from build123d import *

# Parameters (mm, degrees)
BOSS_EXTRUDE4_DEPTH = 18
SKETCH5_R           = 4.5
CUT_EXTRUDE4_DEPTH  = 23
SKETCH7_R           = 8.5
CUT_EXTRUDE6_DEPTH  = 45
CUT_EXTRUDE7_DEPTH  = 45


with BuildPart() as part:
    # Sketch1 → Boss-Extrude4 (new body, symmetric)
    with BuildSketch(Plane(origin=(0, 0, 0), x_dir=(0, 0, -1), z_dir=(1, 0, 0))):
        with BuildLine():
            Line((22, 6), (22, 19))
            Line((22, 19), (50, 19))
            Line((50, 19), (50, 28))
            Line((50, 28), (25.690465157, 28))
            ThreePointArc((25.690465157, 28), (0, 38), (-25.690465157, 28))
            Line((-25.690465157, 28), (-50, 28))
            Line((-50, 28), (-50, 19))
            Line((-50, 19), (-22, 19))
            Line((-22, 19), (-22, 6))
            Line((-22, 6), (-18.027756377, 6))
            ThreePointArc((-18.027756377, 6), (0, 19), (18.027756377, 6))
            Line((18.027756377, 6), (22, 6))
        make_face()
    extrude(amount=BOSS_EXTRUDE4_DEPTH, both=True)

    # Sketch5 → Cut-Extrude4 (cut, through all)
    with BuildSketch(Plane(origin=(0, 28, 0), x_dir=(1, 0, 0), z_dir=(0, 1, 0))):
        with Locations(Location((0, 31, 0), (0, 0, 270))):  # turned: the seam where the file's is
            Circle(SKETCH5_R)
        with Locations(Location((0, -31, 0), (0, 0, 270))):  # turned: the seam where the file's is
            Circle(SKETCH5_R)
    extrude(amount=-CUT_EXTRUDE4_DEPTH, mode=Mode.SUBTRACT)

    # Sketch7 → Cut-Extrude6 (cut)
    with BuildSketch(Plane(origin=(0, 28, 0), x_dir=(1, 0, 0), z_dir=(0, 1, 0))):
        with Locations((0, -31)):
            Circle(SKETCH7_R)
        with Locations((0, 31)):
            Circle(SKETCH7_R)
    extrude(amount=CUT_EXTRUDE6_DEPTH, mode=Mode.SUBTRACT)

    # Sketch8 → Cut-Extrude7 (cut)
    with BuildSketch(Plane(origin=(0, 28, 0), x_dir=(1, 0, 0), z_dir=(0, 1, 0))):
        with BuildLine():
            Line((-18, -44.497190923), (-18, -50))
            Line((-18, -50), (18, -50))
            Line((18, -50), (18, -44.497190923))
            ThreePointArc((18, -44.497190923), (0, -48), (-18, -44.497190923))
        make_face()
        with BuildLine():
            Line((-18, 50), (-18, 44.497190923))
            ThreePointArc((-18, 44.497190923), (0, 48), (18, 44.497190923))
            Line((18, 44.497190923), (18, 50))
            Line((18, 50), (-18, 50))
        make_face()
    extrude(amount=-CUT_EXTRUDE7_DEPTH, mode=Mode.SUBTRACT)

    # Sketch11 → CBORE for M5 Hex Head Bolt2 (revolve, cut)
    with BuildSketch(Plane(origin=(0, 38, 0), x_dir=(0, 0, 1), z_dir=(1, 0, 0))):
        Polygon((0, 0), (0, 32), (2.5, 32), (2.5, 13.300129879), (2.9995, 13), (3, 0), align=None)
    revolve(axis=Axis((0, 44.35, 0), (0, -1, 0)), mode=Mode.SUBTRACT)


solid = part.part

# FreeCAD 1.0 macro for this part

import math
import FreeCAD as App
import Part
import Sketcher

V = App.Vector
Q = App.Units.Quantity


def add_polygon(sketch, points):
    """Adds a closed chain of lines whose ends are joined by coincident constraints."""
    first, n = sketch.GeometryCount, len(points)
    for a, b in zip(points, points[1:] + points[:1]):
        sketch.addGeometry(Part.LineSegment(App.Vector(*a, 0), App.Vector(*b, 0)), False)
    for i in range(n):
        sketch.addConstraint(Sketcher.Constraint("Coincident", first + i, 2, first + (i + 1) % n, 1))

doc = App.newDocument("Part")
body = doc.addObject("PartDesign::Body", "Body")

sketch1 = doc.addObject("Sketcher::SketchObject", "Sketch")
body.addObject(sketch1)
sketch1.AttachmentSupport = (doc.YZ_Plane, [""])
sketch1.MapMode = "FlatFace"
sketch1.addGeometry(Part.LineSegment(V(6, -22, 0), V(19, -22, 0)), False)
sketch1.addGeometry(Part.LineSegment(V(19, -22, 0), V(19, -50, 0)), False)
sketch1.addGeometry(Part.LineSegment(V(19, -50, 0), V(28, -50, 0)), False)
sketch1.addGeometry(Part.LineSegment(V(28, -50, 0), V(28, -25.7, 0)), False)
sketch1.addGeometry(Part.ArcOfCircle(Part.Circle(V(0, 0, 0), V(0, 0, 1), 38), math.radians(-43), math.radians(43)), False)
sketch1.addGeometry(Part.LineSegment(V(28, 25.7, 0), V(28, 50, 0)), False)
sketch1.addGeometry(Part.LineSegment(V(28, 50, 0), V(19, 50, 0)), False)
sketch1.addGeometry(Part.LineSegment(V(19, 50, 0), V(19, 22, 0)), False)
sketch1.addGeometry(Part.LineSegment(V(19, 22, 0), V(6, 22, 0)), False)
sketch1.addGeometry(Part.LineSegment(V(6, 22, 0), V(6, 18, 0)), False)
sketch1.addGeometry(Part.ArcOfCircle(Part.Circle(V(0, 0, 0), V(0, 0, 1), 19), math.radians(-72), math.radians(72)), False)
sketch1.addGeometry(Part.LineSegment(V(6, -18, 0), V(6, -22, 0)), False)
sketch1.addConstraint(Sketcher.Constraint("Coincident", 0, 2, 1, 1))
sketch1.addConstraint(Sketcher.Constraint("Coincident", 1, 2, 2, 1))
sketch1.addConstraint(Sketcher.Constraint("Coincident", 2, 2, 3, 1))
sketch1.addConstraint(Sketcher.Constraint("Coincident", 3, 2, 4, 1))
sketch1.addConstraint(Sketcher.Constraint("Coincident", 4, 2, 5, 1))
sketch1.addConstraint(Sketcher.Constraint("Coincident", 5, 2, 6, 1))
sketch1.addConstraint(Sketcher.Constraint("Coincident", 6, 2, 7, 1))
sketch1.addConstraint(Sketcher.Constraint("Coincident", 7, 2, 8, 1))
sketch1.addConstraint(Sketcher.Constraint("Coincident", 8, 2, 9, 1))
sketch1.addConstraint(Sketcher.Constraint("Coincident", 9, 2, 10, 2))
sketch1.addConstraint(Sketcher.Constraint("Coincident", 10, 1, 11, 1))
sketch1.addConstraint(Sketcher.Constraint("Coincident", 11, 2, 0, 1))
sketch1.addConstraint(Sketcher.Constraint("Horizontal", 0))
sketch1.addConstraint(Sketcher.Constraint("Vertical", 1))
sketch1.addConstraint(Sketcher.Constraint("Horizontal", 2))
sketch1.addConstraint(Sketcher.Constraint("Vertical", 3))
sketch1.addConstraint(Sketcher.Constraint("Vertical", 5))
sketch1.addConstraint(Sketcher.Constraint("Horizontal", 6))
sketch1.addConstraint(Sketcher.Constraint("Vertical", 7))
sketch1.addConstraint(Sketcher.Constraint("Horizontal", 8))
sketch1.addConstraint(Sketcher.Constraint("Vertical", 9))
sketch1.addConstraint(Sketcher.Constraint("Vertical", 11))
sketch1.addConstraint(Sketcher.Constraint("Coincident", 4, 3, -1, 1))
sketch1.addConstraint(Sketcher.Constraint("Coincident", 10, 3, -1, 1))
sketch1.addConstraint(Sketcher.Constraint("Symmetric", 2, 2, 5, 2, -1))
sketch1.addConstraint(Sketcher.Constraint("Symmetric", 0, 2, 7, 2, -1))
sketch1.addConstraint(Sketcher.Constraint("Vertical", 9, 2, 10, 1))
sketch1.addConstraint(Sketcher.Constraint("Radius", 4, 38.0))
sketch1.addConstraint(Sketcher.Constraint("Radius", 10, 19.0))
sketch1.addConstraint(Sketcher.Constraint("DistanceX", 0, 1, 0, 2, 13.0))
sketch1.addConstraint(Sketcher.Constraint("DistanceX", 2, 1, 2, 2, 9.0))
sketch1.addConstraint(Sketcher.Constraint("DistanceY", 1, 2, 1, 1, 28.0))
sketch1.addConstraint(Sketcher.Constraint("DistanceX", -1, 1, 0, 2, 19.0))
sketch1.addConstraint(Sketcher.Constraint("DistanceY", 0, 2, -1, 1, 22.0))
pad1 = doc.addObject("PartDesign::Pad", "Pad")
body.addObject(pad1)
pad1.Profile = sketch1
pad1.Length = 36
pad1.Midplane = True

sketch2 = doc.addObject("Sketcher::SketchObject", "Sketch001")
body.addObject(sketch2)
sketch2.AttachmentSupport = (doc.XZ_Plane, [""])
sketch2.MapMode = "FlatFace"
sketch2.AttachmentOffset = App.Placement(V(0, 0, -28), App.Rotation())
sketch2.addGeometry(Part.Circle(V(0, -31, 0), V(0, 0, 1), 4.5), False)
sketch2.addGeometry(Part.Circle(V(0, 31, 0), V(0, 0, 1), 4.5), False)
sketch2.addConstraint(Sketcher.Constraint("Equal", 0, 1))
sketch2.addConstraint(Sketcher.Constraint("Symmetric", 0, 3, 1, 3, -1, 1))
sketch2.addConstraint(Sketcher.Constraint("PointOnObject", 0, 3, -2))
sketch2.addConstraint(Sketcher.Constraint("Diameter", 0, 9.0))
sketch2.addConstraint(Sketcher.Constraint("DistanceY", 0, 3, -1, 1, 31.0))
pocket1 = doc.addObject("PartDesign::Pocket", "Pocket")
body.addObject(pocket1)
pocket1.Profile = sketch2
pocket1.Type = "ThroughAll"
pocket1.Reversed = True

sketch3 = doc.addObject("Sketcher::SketchObject", "Sketch002")
body.addObject(sketch3)
sketch3.AttachmentSupport = (doc.XZ_Plane, [""])
sketch3.MapMode = "FlatFace"
sketch3.AttachmentOffset = App.Placement(V(0, 0, -28), App.Rotation())
sketch3.addGeometry(Part.Circle(V(0, 31, 0), V(0, 0, 1), 8), False)
sketch3.addGeometry(Part.Circle(V(0, -31, 0), V(0, 0, 1), 8), False)
sketch3.addConstraint(Sketcher.Constraint("Equal", 0, 1))
sketch3.addConstraint(Sketcher.Constraint("Symmetric", 0, 3, 1, 3, -1, 1))
sketch3.addConstraint(Sketcher.Constraint("PointOnObject", 0, 3, -2))
sketch3.addConstraint(Sketcher.Constraint("Diameter", 0, 17.0))
sketch3.addConstraint(Sketcher.Constraint("DistanceY", -1, 1, 0, 3, 31.0))
pocket2 = doc.addObject("PartDesign::Pocket", "Pocket001")
body.addObject(pocket2)
pocket2.Profile = sketch3
pocket2.Length = 45

sketch4 = doc.addObject("Sketcher::SketchObject", "Sketch003")
body.addObject(sketch4)
sketch4.AttachmentSupport = (doc.XZ_Plane, [""])
sketch4.MapMode = "FlatFace"
sketch4.AttachmentOffset = App.Placement(V(0, 0, -28), App.Rotation())
sketch4.addGeometry(Part.LineSegment(V(-18, 44, 0), V(-18, 50, 0)), False)
sketch4.addGeometry(Part.LineSegment(V(-18, 50, 0), V(18, 50, 0)), False)
sketch4.addGeometry(Part.LineSegment(V(18, 50, 0), V(18, 44, 0)), False)
sketch4.addGeometry(Part.ArcOfCircle(Part.Circle(V(0, 0, 0), V(0, 0, 1), 48), math.radians(68), math.radians(112)), False)
sketch4.addGeometry(Part.LineSegment(V(-18, -50, 0), V(-18, -44, 0)), False)
sketch4.addGeometry(Part.ArcOfCircle(Part.Circle(V(0, 0, 0), V(0, 0, 1), 48), math.radians(-112), math.radians(-68)), False)
sketch4.addGeometry(Part.LineSegment(V(18, -44, 0), V(18, -50, 0)), False)
sketch4.addGeometry(Part.LineSegment(V(18, -50, 0), V(-18, -50, 0)), False)
sketch4.addConstraint(Sketcher.Constraint("Coincident", 0, 2, 1, 1))
sketch4.addConstraint(Sketcher.Constraint("Coincident", 1, 2, 2, 1))
sketch4.addConstraint(Sketcher.Constraint("Coincident", 2, 2, 3, 1))
sketch4.addConstraint(Sketcher.Constraint("Coincident", 3, 2, 0, 1))
sketch4.addConstraint(Sketcher.Constraint("Coincident", 4, 2, 5, 1))
sketch4.addConstraint(Sketcher.Constraint("Coincident", 5, 2, 6, 1))
sketch4.addConstraint(Sketcher.Constraint("Coincident", 6, 2, 7, 1))
sketch4.addConstraint(Sketcher.Constraint("Coincident", 7, 2, 4, 1))
sketch4.addConstraint(Sketcher.Constraint("Vertical", 0))
sketch4.addConstraint(Sketcher.Constraint("Horizontal", 1))
sketch4.addConstraint(Sketcher.Constraint("Vertical", 2))
sketch4.addConstraint(Sketcher.Constraint("Vertical", 4))
sketch4.addConstraint(Sketcher.Constraint("Vertical", 6))
sketch4.addConstraint(Sketcher.Constraint("Horizontal", 7))
sketch4.addConstraint(Sketcher.Constraint("Coincident", 3, 3, -1, 1))
sketch4.addConstraint(Sketcher.Constraint("Coincident", 5, 3, -1, 1))
sketch4.addConstraint(Sketcher.Constraint("Equal", 3, 5))
sketch4.addConstraint(Sketcher.Constraint("Symmetric", 0, 2, 6, 2, -1, 1))
sketch4.addConstraint(Sketcher.Constraint("Horizontal", 2, 2, 3, 2))
sketch4.addConstraint(Sketcher.Constraint("Horizontal", 4, 2, 5, 2))
sketch4.addConstraint(Sketcher.Constraint("Radius", 3, 48.0))
sketch4.addConstraint(Sketcher.Constraint("DistanceX", 1, 1, 1, 2, 36.0))
sketch4.addConstraint(Sketcher.Constraint("DistanceY", -1, 1, 0, 2, 50.0))
pocket3 = doc.addObject("PartDesign::Pocket", "Pocket002")
body.addObject(pocket3)
pocket3.Profile = sketch4
pocket3.Length = 45
pocket3.Reversed = True

sketch5 = doc.addObject("Sketcher::SketchObject", "Sketch004")
body.addObject(sketch5)
sketch5.AttachmentSupport = (doc.YZ_Plane, [""])
sketch5.MapMode = "FlatFace"
add_polygon(sketch5, [(6, 0), (38, 0), (38, 3), (25, 3), (24.7, 2.5), (6, 2.5)])
sketch5.addConstraint(Sketcher.Constraint("Horizontal", 0))
sketch5.addConstraint(Sketcher.Constraint("Vertical", 1))
sketch5.addConstraint(Sketcher.Constraint("Horizontal", 4))
sketch5.addConstraint(Sketcher.Constraint("Vertical", 5))
sketch5.addConstraint(Sketcher.Constraint("PointOnObject", 0, 2, -1))
sketch5.addConstraint(Sketcher.Constraint("DistanceX", 0, 1, 0, 2, 32.0))
sketch5.addConstraint(Sketcher.Constraint("DistanceY", 1, 1, 1, 2, 3.0))
sketch5.addConstraint(Sketcher.Constraint("Angle", 3, Q("-121 deg")))
sketch5.addConstraint(Sketcher.Constraint("Distance", 2, 13.0))
sketch5.addConstraint(Sketcher.Constraint("DistanceY", 5, 2, 5, 1, 2.5))
sketch5.addConstraint(Sketcher.Constraint("DistanceX", -1, 1, 0, 2, 38.0))
sketch5.addConstraint(Sketcher.Constraint("DistanceX", 4, 2, 4, 1, 18.69987))
groove = doc.addObject("PartDesign::Groove", "Groove")
body.addObject(groove)
groove.Profile = sketch5
groove.ReferenceAxis = (sketch5, ["H_Axis"])
groove.Angle = 360

doc.recompute()
